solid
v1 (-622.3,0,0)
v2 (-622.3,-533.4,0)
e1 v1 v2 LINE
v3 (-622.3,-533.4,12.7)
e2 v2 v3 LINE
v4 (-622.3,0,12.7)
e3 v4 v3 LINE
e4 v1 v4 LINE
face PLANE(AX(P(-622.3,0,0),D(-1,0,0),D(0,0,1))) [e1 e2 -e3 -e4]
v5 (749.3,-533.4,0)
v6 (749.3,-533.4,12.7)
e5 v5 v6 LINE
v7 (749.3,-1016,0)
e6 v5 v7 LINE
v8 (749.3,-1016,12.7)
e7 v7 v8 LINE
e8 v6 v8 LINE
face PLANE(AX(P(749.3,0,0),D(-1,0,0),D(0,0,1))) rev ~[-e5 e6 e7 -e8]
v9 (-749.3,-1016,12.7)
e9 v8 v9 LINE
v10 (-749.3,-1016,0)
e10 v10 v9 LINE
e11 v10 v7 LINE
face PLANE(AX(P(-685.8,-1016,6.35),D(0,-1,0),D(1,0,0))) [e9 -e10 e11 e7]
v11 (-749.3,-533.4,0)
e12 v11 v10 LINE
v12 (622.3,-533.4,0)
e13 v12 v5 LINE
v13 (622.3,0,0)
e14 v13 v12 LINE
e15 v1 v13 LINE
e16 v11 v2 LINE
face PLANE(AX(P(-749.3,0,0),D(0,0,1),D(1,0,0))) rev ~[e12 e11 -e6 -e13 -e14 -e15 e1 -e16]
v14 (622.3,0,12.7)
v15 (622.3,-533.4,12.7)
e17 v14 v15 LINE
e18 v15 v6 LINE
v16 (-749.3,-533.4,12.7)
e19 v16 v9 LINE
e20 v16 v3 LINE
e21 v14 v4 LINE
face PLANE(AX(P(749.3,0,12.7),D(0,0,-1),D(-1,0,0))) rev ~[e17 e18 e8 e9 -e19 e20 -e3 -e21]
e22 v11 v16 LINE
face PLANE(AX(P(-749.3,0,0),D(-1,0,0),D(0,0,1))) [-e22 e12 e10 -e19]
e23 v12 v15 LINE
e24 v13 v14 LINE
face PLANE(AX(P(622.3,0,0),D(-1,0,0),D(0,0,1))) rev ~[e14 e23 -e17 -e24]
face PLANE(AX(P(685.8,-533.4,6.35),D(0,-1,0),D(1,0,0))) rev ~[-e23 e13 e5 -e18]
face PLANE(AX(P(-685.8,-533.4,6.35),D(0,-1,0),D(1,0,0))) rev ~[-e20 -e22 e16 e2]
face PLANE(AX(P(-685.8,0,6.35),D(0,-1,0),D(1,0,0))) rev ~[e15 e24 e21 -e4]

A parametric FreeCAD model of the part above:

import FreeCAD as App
import Part
import Sketcher

V = App.Vector
Q = App.Units.Quantity


def add_polygon(sketch, points):
    """Adds a closed chain of lines whose ends are joined by coincident constraints."""
    first, n = sketch.GeometryCount, len(points)
    for a, b in zip(points, points[1:] + points[:1]):
        sketch.addGeometry(Part.LineSegment(App.Vector(*a, 0), App.Vector(*b, 0)), False)
    for i in range(n):
        sketch.addConstraint(Sketcher.Constraint("Coincident", first + i, 2, first + (i + 1) % n, 1))

doc = App.newDocument("Part")
body = doc.addObject("PartDesign::Body", "Body")

# Sketch on XZ plane
sketch1 = body.newObject("Sketcher::SketchObject", "Sketch")
sketch1.AttachmentSupport = (doc.getObject("XZ_Plane"), [""])
sketch1.MapMode = "FlatFace"
add_polygon(sketch1, [(-749, 13), (-749, 0), (749, 0), (749, 13)])  # lines 0-3
sketch1.addConstraint(Sketcher.Constraint("Vertical", 0))
sketch1.addConstraint(Sketcher.Constraint("Horizontal", 1))
sketch1.addConstraint(Sketcher.Constraint("Vertical", 2))
sketch1.addConstraint(Sketcher.Constraint("Horizontal", 3))
sketch1.addConstraint(Sketcher.Constraint("Symmetric", 0, 2, 1, 2, -1, 1))
sketch1.addConstraint(Sketcher.Constraint("DistanceX", 1, 1, 1, 2, Q("59 in")))
sketch1.addConstraint(Sketcher.Constraint("DistanceY", 0, 2, 0, 1, Q("0.5 in")))
pad1 = body.newObject("PartDesign::Pad", "Pad")
pad1.Profile = sketch1
pad1.Length = Q("40 in")

# Sketch on XZ plane
sketch2 = body.newObject("Sketcher::SketchObject", "Sketch001")
sketch2.AttachmentSupport = (doc.getObject("XZ_Plane"), [""])
sketch2.MapMode = "FlatFace"
add_polygon(sketch2, [(-749, 13), (-749, 0), (-622, 0), (-622, 13)])  # lines 0-3
add_polygon(sketch2, [(622, 13), (622, 0), (749, 0), (749, 13)])  # lines 4-7
sketch2.addConstraint(Sketcher.Constraint("Vertical", 0))
sketch2.addConstraint(Sketcher.Constraint("Horizontal", 1))
sketch2.addConstraint(Sketcher.Constraint("Vertical", 2))
sketch2.addConstraint(Sketcher.Constraint("Horizontal", 3))
sketch2.addConstraint(Sketcher.Constraint("Vertical", 4))
sketch2.addConstraint(Sketcher.Constraint("Horizontal", 5))
sketch2.addConstraint(Sketcher.Constraint("Vertical", 6))
sketch2.addConstraint(Sketcher.Constraint("Horizontal", 7))
sketch2.addConstraint(Sketcher.Constraint("Symmetric", 1, 2, 4, 2, -1, 1))
sketch2.addConstraint(Sketcher.Constraint("Symmetric", 0, 2, 5, 2, -2))
sketch2.addConstraint(Sketcher.Constraint("Horizontal", 3, 2, 6, 2))
sketch2.addConstraint(Sketcher.Constraint("DistanceX", 1, 1, 1, 2, Q("5 in")))
sketch2.addConstraint(Sketcher.Constraint("DistanceY", 0, 2, 0, 1, Q("0.5 in")))
sketch2.addConstraint(Sketcher.Constraint("DistanceX", 1, 2, 4, 2, Q("49 in")))
pocket1 = body.newObject("PartDesign::Pocket", "Pocket")
pocket1.Profile = sketch2
pocket1.Length = Q("21 in")
pocket1.Reversed = True

doc.recompute()
